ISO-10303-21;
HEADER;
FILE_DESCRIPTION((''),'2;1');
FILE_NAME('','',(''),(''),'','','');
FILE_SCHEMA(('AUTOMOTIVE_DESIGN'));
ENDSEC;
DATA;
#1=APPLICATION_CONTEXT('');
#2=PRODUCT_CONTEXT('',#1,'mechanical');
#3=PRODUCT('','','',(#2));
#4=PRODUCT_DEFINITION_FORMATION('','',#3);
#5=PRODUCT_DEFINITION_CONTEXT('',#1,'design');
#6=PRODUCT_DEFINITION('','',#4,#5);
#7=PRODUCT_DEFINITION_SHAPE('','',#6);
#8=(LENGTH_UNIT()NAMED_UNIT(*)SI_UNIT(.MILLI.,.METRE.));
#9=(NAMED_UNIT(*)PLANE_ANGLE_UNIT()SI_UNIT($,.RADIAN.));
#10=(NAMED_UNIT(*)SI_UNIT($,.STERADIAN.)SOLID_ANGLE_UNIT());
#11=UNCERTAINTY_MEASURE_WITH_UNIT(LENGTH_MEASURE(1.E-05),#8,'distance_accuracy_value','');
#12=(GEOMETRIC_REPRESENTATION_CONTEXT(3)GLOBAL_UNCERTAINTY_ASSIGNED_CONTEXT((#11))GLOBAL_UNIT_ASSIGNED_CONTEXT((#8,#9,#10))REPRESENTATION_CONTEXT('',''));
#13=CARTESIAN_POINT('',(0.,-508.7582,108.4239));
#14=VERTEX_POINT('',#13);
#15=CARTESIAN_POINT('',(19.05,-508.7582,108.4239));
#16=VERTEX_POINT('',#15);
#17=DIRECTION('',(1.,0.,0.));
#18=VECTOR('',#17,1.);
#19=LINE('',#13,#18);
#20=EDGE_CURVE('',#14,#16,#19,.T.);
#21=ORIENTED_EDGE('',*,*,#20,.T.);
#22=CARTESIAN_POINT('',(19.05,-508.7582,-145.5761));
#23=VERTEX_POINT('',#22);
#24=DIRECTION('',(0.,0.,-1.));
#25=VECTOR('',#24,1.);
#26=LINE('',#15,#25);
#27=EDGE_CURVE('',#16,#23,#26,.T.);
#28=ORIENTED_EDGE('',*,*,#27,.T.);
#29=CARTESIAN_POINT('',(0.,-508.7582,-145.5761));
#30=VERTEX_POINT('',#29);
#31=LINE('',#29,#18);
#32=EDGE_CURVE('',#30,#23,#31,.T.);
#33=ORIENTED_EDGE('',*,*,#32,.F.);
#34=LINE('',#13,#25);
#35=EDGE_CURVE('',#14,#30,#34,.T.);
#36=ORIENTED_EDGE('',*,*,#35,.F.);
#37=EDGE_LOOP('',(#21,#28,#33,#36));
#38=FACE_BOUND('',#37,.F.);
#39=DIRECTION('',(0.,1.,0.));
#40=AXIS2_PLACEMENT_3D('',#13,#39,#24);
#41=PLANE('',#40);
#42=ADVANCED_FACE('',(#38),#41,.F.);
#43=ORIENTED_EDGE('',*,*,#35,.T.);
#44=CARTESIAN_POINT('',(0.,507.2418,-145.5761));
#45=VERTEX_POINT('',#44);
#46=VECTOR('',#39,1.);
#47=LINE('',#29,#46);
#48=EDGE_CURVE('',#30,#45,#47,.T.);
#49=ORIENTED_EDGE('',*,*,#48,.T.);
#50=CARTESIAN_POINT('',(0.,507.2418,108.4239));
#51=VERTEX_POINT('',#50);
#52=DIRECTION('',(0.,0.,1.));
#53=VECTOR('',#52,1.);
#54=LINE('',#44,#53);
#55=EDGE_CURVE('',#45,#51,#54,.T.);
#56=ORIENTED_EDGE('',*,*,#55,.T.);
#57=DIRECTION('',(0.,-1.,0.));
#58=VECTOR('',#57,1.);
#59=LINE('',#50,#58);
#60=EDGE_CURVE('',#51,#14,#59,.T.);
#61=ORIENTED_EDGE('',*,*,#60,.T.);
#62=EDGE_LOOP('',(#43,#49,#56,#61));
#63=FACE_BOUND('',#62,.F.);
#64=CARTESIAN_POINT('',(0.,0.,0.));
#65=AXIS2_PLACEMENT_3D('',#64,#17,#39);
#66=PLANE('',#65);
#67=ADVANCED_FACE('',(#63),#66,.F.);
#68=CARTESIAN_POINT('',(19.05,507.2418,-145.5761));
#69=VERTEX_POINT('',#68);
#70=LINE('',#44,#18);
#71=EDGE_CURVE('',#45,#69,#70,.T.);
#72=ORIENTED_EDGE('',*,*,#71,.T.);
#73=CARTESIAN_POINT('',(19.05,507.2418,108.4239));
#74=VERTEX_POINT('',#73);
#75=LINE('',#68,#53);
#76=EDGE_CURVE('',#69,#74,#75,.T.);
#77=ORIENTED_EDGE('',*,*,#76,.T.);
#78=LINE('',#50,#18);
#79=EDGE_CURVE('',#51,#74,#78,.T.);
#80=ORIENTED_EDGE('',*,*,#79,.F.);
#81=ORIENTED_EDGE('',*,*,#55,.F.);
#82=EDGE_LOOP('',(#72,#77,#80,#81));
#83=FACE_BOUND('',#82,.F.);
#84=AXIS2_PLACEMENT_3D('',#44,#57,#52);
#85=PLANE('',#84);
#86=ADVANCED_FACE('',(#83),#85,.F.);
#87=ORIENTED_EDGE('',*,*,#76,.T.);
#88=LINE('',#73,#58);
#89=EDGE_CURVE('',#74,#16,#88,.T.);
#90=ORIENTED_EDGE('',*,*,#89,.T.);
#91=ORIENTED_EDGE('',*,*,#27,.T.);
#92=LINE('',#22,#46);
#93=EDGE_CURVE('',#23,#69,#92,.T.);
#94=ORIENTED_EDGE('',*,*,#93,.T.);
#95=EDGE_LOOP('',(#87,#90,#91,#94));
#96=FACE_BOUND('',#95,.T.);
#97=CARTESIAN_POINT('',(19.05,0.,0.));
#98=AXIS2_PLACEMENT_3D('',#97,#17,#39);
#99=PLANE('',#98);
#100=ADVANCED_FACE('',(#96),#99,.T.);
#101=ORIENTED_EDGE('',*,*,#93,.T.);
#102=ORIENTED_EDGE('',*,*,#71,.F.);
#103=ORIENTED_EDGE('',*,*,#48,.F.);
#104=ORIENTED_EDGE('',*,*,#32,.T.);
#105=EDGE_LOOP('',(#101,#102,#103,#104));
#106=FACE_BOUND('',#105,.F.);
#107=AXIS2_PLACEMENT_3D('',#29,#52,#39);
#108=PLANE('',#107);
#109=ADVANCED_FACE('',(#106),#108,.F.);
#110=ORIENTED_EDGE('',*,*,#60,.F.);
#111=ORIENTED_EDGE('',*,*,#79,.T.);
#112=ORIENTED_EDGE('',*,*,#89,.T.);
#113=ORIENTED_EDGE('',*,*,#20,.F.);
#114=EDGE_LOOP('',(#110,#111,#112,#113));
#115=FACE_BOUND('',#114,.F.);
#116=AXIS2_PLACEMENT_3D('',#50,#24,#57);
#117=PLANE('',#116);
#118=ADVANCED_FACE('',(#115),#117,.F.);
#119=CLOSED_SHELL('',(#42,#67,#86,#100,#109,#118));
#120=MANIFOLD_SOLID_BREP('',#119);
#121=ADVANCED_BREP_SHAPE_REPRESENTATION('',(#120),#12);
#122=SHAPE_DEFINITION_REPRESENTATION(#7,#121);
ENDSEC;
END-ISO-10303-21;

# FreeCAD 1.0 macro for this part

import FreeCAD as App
import Part
import Sketcher

V = App.Vector
Q = App.Units.Quantity

doc = App.newDocument("Part")
body = doc.addObject("PartDesign::Body", "Body")

sketch1 = body.newObject("Sketcher::SketchObject", "Sketch")
sketch1.AttachmentSupport = (doc.getObject("YZ_Plane"), [""])
sketch1.MapMode = "FlatFace"
sketch1.addGeometry(Part.LineSegment(V(507, -146, 0), V(507, 108, 0)), False)
sketch1.addGeometry(Part.LineSegment(V(507, 108, 0), V(-509, 108, 0)), False)
sketch1.addGeometry(Part.LineSegment(V(-509, 108, 0), V(-509, -146, 0)), False)
sketch1.addGeometry(Part.LineSegment(V(-509, -146, 0), V(507, -146, 0)), False)
sketch1.addConstraint(Sketcher.Constraint("Coincident", 0, 2, 1, 1))
sketch1.addConstraint(Sketcher.Constraint("Coincident", 1, 2, 2, 1))
sketch1.addConstraint(Sketcher.Constraint("Coincident", 2, 2, 3, 1))
sketch1.addConstraint(Sketcher.Constraint("Coincident", 3, 2, 0, 1))
sketch1.addConstraint(Sketcher.Constraint("Vertical", 0))
sketch1.addConstraint(Sketcher.Constraint("Horizontal", 1))
sketch1.addConstraint(Sketcher.Constraint("Vertical", 2))
sketch1.addConstraint(Sketcher.Constraint("Horizontal", 3))
sketch1.addConstraint(Sketcher.Constraint("DistanceX", 1, 2, 1, 1, Q("40 in")))
sketch1.addConstraint(Sketcher.Constraint("DistanceY", 0, 1, 0, 2, Q("10 in")))
sketch1.addConstraint(Sketcher.Constraint("DistanceX", -1, 1, 0, 2, 507.2418))
sketch1.addConstraint(Sketcher.Constraint("DistanceY", -1, 1, 0, 2, 108.424))
pad1 = body.newObject("PartDesign::Pad", "Pad")
pad1.Profile = sketch1
pad1.Length = Q("0.75 in")

doc.recompute()
